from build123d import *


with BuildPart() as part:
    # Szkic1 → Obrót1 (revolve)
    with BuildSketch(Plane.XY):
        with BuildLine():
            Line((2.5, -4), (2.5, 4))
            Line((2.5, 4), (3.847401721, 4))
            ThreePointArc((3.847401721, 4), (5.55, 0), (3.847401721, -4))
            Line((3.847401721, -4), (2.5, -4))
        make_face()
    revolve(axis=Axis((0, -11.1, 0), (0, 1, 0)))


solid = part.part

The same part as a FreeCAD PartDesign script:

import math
import FreeCAD as App
import Part
import Sketcher

doc = App.newDocument("Part")
body = doc.addObject("PartDesign::Body", "Body")

sketch1 = body.newObject("Sketcher::SketchObject", "Sketch")
sketch1.AttachmentSupport = (doc.getObject("XY_Plane"), [""])
sketch1.MapMode = "FlatFace"
sketch1.addGeometry([
    Part.LineSegment(App.Vector(2.5, 4, 0), App.Vector(2.5, -4, 0)),
    Part.LineSegment(App.Vector(2.5, -4, 0), App.Vector(3.8, -4, 0)),
    Part.ArcOfCircle(Part.Circle(App.Vector(0, 0, 0), App.Vector(0, 0, 1), 5.6), math.radians(-46), math.radians(46)),
    Part.LineSegment(App.Vector(3.8, 4, 0), App.Vector(2.5, 4, 0)),
], False)
sketch1.addConstraint([
    Sketcher.Constraint("Coincident", 0, 2, 1, 1),
    Sketcher.Constraint("Coincident", 1, 2, 2, 1),
    Sketcher.Constraint("Coincident", 2, 2, 3, 1),
    Sketcher.Constraint("Coincident", 3, 2, 0, 1),
    Sketcher.Constraint("Vertical", 0),
    Sketcher.Constraint("Horizontal", 1),
    Sketcher.Constraint("Horizontal", 3),
    Sketcher.Constraint("Coincident", 2, 3, -1, 1),
    Sketcher.Constraint("Vertical", 1, 2, 2, 2),
    Sketcher.Constraint("DistanceY", 0, 2, 0, 1, 8.0),
    Sketcher.Constraint("Radius", 2, 5.55),
    Sketcher.Constraint("DistanceX", -1, 1, 0, 2, 2.5),
])
revolution = body.newObject("PartDesign::Revolution", "Revolution")
revolution.Profile = sketch1
revolution.ReferenceAxis = (sketch1, ["V_Axis"])
revolution.Angle = 360

doc.recompute()
